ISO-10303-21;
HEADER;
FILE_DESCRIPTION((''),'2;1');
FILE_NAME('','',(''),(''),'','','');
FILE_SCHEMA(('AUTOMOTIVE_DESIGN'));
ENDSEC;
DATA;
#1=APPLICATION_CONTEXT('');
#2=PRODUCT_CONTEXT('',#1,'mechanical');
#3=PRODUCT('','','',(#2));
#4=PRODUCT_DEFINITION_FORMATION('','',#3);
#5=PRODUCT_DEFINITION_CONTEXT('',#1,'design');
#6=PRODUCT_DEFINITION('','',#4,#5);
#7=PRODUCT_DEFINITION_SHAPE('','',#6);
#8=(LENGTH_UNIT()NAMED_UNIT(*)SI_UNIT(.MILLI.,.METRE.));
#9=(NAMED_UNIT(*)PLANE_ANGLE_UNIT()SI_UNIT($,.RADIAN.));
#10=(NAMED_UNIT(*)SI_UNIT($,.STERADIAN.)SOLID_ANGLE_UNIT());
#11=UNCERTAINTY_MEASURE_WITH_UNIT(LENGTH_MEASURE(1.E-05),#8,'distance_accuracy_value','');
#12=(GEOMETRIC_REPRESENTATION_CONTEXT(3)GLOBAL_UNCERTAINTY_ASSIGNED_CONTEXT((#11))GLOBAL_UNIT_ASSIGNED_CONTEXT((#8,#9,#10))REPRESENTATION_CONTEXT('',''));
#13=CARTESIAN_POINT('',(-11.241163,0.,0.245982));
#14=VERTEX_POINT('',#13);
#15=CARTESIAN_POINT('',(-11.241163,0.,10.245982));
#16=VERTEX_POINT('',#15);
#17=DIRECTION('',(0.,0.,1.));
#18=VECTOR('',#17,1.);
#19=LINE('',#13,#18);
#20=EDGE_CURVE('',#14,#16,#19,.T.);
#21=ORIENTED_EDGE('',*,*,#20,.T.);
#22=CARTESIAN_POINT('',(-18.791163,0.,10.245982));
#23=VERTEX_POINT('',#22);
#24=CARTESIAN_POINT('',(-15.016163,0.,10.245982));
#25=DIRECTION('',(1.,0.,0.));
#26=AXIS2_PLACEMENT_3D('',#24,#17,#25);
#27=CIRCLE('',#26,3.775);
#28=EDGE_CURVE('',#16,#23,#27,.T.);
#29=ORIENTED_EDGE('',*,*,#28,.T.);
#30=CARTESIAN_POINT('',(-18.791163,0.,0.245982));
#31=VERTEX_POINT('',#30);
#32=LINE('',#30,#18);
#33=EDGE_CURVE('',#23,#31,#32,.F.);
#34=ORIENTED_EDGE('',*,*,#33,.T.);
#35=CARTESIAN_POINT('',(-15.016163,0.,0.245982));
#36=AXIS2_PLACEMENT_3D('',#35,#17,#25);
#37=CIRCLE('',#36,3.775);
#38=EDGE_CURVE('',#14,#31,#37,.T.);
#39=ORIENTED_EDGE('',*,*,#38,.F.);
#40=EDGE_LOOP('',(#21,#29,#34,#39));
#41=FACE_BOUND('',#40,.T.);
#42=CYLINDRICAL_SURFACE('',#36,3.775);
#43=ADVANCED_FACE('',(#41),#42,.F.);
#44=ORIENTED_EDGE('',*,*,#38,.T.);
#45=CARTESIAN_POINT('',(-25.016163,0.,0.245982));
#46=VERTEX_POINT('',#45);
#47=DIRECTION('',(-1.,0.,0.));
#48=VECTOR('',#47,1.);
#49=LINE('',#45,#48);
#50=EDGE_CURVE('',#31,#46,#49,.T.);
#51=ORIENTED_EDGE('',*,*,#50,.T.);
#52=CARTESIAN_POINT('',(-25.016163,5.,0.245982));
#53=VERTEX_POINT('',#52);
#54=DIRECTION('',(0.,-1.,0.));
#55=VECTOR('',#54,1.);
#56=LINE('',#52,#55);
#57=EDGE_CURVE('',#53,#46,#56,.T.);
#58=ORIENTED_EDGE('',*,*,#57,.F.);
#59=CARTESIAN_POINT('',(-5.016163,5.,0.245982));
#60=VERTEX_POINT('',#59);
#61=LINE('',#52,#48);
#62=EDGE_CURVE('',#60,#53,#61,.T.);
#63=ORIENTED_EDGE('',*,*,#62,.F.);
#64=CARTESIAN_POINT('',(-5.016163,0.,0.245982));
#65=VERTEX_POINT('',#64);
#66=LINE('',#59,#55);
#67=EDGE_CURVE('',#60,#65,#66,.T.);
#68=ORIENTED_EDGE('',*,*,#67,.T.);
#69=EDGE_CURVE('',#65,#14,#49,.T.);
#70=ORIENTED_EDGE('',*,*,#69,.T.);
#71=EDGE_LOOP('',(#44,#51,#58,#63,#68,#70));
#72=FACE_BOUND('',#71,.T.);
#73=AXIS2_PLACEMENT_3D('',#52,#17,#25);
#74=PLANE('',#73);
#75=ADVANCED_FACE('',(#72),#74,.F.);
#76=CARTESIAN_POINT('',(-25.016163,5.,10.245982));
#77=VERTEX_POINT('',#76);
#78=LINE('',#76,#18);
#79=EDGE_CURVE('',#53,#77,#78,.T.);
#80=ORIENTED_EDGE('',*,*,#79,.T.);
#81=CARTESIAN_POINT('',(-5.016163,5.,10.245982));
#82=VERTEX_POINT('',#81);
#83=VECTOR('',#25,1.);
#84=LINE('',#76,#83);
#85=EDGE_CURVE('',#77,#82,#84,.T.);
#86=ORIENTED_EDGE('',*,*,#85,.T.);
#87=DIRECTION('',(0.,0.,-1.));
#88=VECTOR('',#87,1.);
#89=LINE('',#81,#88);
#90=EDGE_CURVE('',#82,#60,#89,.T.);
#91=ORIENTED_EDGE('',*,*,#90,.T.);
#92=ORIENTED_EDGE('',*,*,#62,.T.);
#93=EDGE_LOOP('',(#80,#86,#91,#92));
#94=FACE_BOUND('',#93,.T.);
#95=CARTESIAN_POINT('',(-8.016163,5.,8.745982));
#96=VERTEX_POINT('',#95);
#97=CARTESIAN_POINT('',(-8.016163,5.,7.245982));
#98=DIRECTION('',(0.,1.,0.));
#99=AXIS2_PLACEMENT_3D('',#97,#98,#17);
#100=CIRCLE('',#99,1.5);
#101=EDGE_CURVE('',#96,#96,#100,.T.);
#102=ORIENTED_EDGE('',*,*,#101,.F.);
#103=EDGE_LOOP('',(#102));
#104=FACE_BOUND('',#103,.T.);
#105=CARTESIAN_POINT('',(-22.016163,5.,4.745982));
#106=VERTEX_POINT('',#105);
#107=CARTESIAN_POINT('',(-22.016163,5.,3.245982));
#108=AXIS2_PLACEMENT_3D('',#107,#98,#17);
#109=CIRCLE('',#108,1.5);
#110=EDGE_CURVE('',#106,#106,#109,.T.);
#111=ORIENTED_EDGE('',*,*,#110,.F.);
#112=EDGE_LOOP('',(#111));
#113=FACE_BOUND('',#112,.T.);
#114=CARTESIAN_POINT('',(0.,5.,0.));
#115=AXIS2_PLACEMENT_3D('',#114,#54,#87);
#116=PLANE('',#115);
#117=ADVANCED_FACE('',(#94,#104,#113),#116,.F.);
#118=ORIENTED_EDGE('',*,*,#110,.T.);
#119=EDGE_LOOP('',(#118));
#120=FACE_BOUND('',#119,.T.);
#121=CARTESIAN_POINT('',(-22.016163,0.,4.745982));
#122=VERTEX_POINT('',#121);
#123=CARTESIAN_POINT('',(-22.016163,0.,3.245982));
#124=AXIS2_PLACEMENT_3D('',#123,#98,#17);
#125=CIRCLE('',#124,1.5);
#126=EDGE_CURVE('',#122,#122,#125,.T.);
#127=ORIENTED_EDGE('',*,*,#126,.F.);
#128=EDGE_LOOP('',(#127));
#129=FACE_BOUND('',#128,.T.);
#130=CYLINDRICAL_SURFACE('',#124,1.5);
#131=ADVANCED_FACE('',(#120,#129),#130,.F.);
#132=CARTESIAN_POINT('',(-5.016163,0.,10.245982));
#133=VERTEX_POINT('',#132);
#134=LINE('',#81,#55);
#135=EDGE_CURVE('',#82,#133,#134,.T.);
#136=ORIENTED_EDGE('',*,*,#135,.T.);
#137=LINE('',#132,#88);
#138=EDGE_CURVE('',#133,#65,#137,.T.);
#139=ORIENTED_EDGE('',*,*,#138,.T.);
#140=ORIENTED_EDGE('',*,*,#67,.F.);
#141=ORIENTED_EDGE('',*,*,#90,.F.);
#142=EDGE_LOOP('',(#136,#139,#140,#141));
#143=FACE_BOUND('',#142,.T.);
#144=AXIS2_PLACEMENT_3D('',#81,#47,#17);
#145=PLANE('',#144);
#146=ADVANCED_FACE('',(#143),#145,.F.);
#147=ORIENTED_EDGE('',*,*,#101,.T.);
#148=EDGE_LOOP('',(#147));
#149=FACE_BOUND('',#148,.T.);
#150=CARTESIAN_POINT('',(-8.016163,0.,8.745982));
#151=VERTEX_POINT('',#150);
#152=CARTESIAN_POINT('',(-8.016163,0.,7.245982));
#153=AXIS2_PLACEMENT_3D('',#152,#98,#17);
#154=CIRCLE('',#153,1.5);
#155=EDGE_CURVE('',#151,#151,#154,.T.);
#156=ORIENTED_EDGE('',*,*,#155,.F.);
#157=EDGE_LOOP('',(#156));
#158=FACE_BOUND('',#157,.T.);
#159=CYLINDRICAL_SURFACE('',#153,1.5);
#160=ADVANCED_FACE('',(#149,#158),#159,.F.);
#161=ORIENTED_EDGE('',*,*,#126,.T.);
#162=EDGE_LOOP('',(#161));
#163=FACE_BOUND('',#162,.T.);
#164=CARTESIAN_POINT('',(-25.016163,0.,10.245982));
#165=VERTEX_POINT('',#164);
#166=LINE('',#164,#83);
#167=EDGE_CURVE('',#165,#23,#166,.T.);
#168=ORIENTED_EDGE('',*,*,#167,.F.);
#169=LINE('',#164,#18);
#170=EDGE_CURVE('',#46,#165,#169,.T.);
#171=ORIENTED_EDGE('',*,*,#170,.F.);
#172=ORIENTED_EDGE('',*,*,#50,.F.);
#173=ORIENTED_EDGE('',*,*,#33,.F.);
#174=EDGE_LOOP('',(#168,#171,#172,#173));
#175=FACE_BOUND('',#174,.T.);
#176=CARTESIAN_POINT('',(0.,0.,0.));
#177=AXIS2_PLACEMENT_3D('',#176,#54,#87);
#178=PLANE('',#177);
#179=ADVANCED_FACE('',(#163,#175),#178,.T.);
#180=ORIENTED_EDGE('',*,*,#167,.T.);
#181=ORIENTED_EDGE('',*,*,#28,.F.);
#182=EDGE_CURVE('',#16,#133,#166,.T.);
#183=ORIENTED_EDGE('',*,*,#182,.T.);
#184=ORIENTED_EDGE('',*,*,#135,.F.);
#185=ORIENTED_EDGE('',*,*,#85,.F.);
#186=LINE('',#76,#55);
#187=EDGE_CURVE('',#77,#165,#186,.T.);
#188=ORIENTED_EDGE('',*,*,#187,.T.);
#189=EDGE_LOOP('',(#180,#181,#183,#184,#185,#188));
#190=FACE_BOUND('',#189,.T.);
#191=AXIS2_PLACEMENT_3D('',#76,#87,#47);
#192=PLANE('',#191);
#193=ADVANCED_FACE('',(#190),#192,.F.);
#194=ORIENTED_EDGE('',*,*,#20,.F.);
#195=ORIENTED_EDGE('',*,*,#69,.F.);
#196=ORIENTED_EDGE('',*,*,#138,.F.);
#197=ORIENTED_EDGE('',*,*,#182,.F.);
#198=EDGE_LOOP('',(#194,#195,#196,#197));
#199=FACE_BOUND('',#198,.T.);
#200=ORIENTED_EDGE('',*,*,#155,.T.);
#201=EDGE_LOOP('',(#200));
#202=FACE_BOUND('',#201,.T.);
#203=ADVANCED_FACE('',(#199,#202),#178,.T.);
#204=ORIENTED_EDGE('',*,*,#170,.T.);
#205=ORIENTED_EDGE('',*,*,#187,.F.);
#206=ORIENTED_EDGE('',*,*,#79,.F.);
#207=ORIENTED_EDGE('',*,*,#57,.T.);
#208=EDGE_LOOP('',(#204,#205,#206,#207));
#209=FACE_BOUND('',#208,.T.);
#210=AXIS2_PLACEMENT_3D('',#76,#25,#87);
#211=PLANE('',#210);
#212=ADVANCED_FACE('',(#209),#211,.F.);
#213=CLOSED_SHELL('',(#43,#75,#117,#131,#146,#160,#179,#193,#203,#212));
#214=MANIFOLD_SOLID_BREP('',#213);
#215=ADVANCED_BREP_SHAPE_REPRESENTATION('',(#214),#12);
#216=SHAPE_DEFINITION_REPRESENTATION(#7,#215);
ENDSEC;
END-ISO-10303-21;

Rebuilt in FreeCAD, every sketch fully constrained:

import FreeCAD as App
import Part
import Sketcher

V = App.Vector


def add_polygon(sketch, points):
    """Adds a closed chain of lines whose ends are joined by coincident constraints."""
    first, n = sketch.GeometryCount, len(points)
    for a, b in zip(points, points[1:] + points[:1]):
        sketch.addGeometry(Part.LineSegment(App.Vector(*a, 0), App.Vector(*b, 0)), False)
    for i in range(n):
        sketch.addConstraint(Sketcher.Constraint("Coincident", first + i, 2, first + (i + 1) % n, 1))

doc = App.newDocument("Part")
body = doc.addObject("PartDesign::Body", "Body")

# Sketch on XZ plane
sketch1 = doc.addObject("Sketcher::SketchObject", "Sketch")
body.addObject(sketch1)
sketch1.AttachmentSupport = (doc.XZ_Plane, [""])
sketch1.MapMode = "FlatFace"
add_polygon(sketch1, [(-25.016163, 0.245982), (-25.016163, 10.245982), (-5.016163, 10.245982), (-5.016163, 0.245982)])  # lines 0-3
sketch1.addConstraint(Sketcher.Constraint("Vertical", 0))
sketch1.addConstraint(Sketcher.Constraint("Horizontal", 1))
sketch1.addConstraint(Sketcher.Constraint("Vertical", 2))
sketch1.addConstraint(Sketcher.Constraint("Horizontal", 3))
sketch1.addConstraint(Sketcher.Constraint("DistanceX", 1, 1, 1, 2, 20.0))
sketch1.addConstraint(Sketcher.Constraint("DistanceY", 0, 1, 0, 2, 10.0))
sketch1.addConstraint(Sketcher.Constraint("DistanceY", -1, 1, 0, 2, 10.245982))
sketch1.addConstraint(Sketcher.Constraint("DistanceX", 0, 2, -1, 1, 25.016163))
pad1 = doc.addObject("PartDesign::Pad", "Pad")
body.addObject(pad1)
pad1.Profile = sketch1
pad1.Length = 5
pad1.Reversed = True

# Sketch on XY plane
sketch2 = doc.addObject("Sketcher::SketchObject", "Sketch001")
body.addObject(sketch2)
sketch2.AttachmentSupport = (doc.XY_Plane, [""])
sketch2.MapMode = "FlatFace"
sketch2.AttachmentOffset = App.Placement(V(0, 0, 10.245982), App.Rotation())
sketch2.addGeometry(Part.Circle(V(-15.016163, 0, 0), V(0, 0, 1), 3.775), False)
sketch2.addConstraint(Sketcher.Constraint("PointOnObject", 0, 3, -1))
sketch2.addConstraint(Sketcher.Constraint("Diameter", 0, 7.55))
sketch2.addConstraint(Sketcher.Constraint("DistanceX", 0, 3, -1, 1, 15.016163))
pocket1 = doc.addObject("PartDesign::Pocket", "Pocket")
body.addObject(pocket1)
pocket1.Profile = sketch2
pocket1.Length = 10

# Sketch on XZ plane
sketch3 = doc.addObject("Sketcher::SketchObject", "Sketch002")
body.addObject(sketch3)
sketch3.AttachmentSupport = (doc.XZ_Plane, [""])
sketch3.MapMode = "FlatFace"
sketch3.AttachmentOffset = App.Placement(V(0, 0, -5), App.Rotation())
sketch3.addGeometry(Part.Circle(V(-22.016163, 3.245982, 0), V(0, 0, 1), 1.5), False)
sketch3.addGeometry(Part.Circle(V(-8.016163, 7.245982, 0), V(0, 0, 1), 1.5), False)
sketch3.addConstraint(Sketcher.Constraint("Equal", 0, 1))
sketch3.addConstraint(Sketcher.Constraint("Diameter", 0, 3.0))
sketch3.addConstraint(Sketcher.Constraint("DistanceX", 0, 3, 1, 3, 14.0))
sketch3.addConstraint(Sketcher.Constraint("DistanceY", 0, 3, 1, 3, 4.0))
sketch3.addConstraint(Sketcher.Constraint("DistanceY", -1, 1, 0, 3, 3.245982))
sketch3.addConstraint(Sketcher.Constraint("DistanceX", 0, 3, -1, 1, 22.016163))
pocket2 = doc.addObject("PartDesign::Pocket", "Pocket001")
body.addObject(pocket2)
pocket2.Profile = sketch3
pocket2.Length = 5
pocket2.Reversed = True

doc.recompute()
